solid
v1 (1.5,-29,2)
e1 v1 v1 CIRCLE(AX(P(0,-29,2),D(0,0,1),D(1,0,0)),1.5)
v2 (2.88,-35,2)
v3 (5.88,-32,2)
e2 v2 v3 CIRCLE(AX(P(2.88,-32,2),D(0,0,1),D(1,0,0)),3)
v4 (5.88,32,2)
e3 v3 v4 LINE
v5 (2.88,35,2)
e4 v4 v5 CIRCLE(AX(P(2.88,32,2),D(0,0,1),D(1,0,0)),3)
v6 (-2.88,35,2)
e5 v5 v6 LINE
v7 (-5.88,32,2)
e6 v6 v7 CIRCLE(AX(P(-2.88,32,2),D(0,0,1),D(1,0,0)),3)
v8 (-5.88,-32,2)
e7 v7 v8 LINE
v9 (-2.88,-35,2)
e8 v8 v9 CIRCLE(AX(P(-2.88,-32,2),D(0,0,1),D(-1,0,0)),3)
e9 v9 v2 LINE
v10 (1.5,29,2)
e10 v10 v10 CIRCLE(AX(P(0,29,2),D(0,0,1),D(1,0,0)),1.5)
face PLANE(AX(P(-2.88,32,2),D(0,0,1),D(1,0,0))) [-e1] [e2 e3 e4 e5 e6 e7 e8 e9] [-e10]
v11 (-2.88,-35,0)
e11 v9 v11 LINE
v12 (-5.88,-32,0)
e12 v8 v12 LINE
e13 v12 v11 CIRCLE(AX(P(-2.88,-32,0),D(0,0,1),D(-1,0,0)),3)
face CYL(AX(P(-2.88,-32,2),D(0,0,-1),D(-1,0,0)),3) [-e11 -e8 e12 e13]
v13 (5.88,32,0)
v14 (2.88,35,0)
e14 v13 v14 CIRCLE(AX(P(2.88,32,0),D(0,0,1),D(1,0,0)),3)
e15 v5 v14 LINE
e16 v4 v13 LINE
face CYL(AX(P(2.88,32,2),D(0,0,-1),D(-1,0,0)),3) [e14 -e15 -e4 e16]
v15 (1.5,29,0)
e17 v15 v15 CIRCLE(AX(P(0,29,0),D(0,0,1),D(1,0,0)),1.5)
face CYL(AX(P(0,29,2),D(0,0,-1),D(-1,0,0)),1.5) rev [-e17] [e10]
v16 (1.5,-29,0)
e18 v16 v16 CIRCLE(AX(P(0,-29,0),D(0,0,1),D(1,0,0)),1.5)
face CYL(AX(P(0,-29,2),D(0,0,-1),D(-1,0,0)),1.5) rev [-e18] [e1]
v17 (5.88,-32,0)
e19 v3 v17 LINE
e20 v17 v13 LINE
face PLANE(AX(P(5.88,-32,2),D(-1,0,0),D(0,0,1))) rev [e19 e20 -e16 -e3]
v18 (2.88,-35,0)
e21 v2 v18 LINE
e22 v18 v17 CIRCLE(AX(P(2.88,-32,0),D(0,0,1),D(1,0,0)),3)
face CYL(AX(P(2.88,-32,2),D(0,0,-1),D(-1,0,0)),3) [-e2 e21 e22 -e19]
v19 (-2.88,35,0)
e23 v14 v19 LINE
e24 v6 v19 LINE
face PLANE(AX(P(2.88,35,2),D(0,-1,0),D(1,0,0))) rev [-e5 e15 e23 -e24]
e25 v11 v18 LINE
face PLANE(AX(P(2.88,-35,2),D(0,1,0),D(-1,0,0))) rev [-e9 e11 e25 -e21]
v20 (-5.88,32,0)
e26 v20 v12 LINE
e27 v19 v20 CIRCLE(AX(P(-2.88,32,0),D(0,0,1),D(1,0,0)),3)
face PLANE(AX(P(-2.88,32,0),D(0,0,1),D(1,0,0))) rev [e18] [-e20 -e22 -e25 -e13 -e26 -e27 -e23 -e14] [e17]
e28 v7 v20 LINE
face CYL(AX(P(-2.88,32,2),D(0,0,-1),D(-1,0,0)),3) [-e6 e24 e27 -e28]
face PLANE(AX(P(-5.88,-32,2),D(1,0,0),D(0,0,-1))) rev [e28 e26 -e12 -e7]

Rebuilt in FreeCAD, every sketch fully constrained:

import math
import FreeCAD as App
import Part
import Sketcher

doc = App.newDocument("Part")
body = doc.addObject("PartDesign::Body", "Body")

sketch1 = body.newObject("Sketcher::SketchObject", "Sketch")
sketch1.AttachmentSupport = (doc.getObject("XY_Plane"), [""])
sketch1.MapMode = "FlatFace"
sketch1.addGeometry(Part.LineSegment(App.Vector(-2.9, -35, 0), App.Vector(2.9, -35, 0)), False)
sketch1.addGeometry(Part.ArcOfCircle(Part.Circle(App.Vector(2.9, -32, 0), App.Vector(0, 0, 1), 3), math.radians(-90), math.radians(0)), False)
sketch1.addGeometry(Part.LineSegment(App.Vector(5.9, -32, 0), App.Vector(5.9, 32, 0)), False)
sketch1.addGeometry(Part.ArcOfCircle(Part.Circle(App.Vector(2.9, 32, 0), App.Vector(0, 0, 1), 3), math.radians(0), math.radians(90)), False)
sketch1.addGeometry(Part.LineSegment(App.Vector(2.9, 35, 0), App.Vector(-2.9, 35, 0)), False)
sketch1.addGeometry(Part.ArcOfCircle(Part.Circle(App.Vector(-2.9, 32, 0), App.Vector(0, 0, 1), 3), math.radians(90), math.radians(180)), False)
sketch1.addGeometry(Part.LineSegment(App.Vector(-5.9, 32, 0), App.Vector(-5.9, -32, 0)), False)
sketch1.addGeometry(Part.ArcOfCircle(Part.Circle(App.Vector(-2.9, -32, 0), App.Vector(0, 0, 1), 3), math.radians(180), math.radians(270)), False)
sketch1.addGeometry(Part.Circle(App.Vector(0, -29, 0), App.Vector(0, 0, 1), 1.5), False)
sketch1.addGeometry(Part.Circle(App.Vector(0, 29, 0), App.Vector(0, 0, 1), 1.5), False)
sketch1.addConstraint(Sketcher.Constraint("Tangent", 0, 2, 1, 1))
sketch1.addConstraint(Sketcher.Constraint("Tangent", 1, 2, 2, 1))
sketch1.addConstraint(Sketcher.Constraint("Tangent", 2, 2, 3, 1))
sketch1.addConstraint(Sketcher.Constraint("Tangent", 3, 2, 4, 1))
sketch1.addConstraint(Sketcher.Constraint("Tangent", 4, 2, 5, 1))
sketch1.addConstraint(Sketcher.Constraint("Tangent", 5, 2, 6, 1))
sketch1.addConstraint(Sketcher.Constraint("Tangent", 6, 2, 7, 1))
sketch1.addConstraint(Sketcher.Constraint("Tangent", 7, 2, 0, 1))
sketch1.addConstraint(Sketcher.Constraint("Horizontal", 0))
sketch1.addConstraint(Sketcher.Constraint("Vertical", 2))
sketch1.addConstraint(Sketcher.Constraint("Horizontal", 4))
sketch1.addConstraint(Sketcher.Constraint("Vertical", 6))
sketch1.addConstraint(Sketcher.Constraint("Equal", 1, 3))
sketch1.addConstraint(Sketcher.Constraint("Equal", 3, 5))
sketch1.addConstraint(Sketcher.Constraint("Equal", 5, 7))
sketch1.addConstraint(Sketcher.Constraint("Equal", 8, 9))
sketch1.addConstraint(Sketcher.Constraint("Symmetric", 1, 3, 5, 3, -1, 1))
sketch1.addConstraint(Sketcher.Constraint("Symmetric", 8, 3, 9, 3, -1, 1))
sketch1.addConstraint(Sketcher.Constraint("PointOnObject", 8, 3, -2))
sketch1.addConstraint(Sketcher.Constraint("Diameter", 8, 3.0))
sketch1.addConstraint(Sketcher.Constraint("Radius", 1, 3.0))
sketch1.addConstraint(Sketcher.Constraint("DistanceY", 2, 1, 2, 2, 64.0))
sketch1.addConstraint(Sketcher.Constraint("DistanceY", 8, 3, -1, 1, 29.0))
sketch1.addConstraint(Sketcher.Constraint("DistanceX", 0, 1, 0, 2, 5.76))
pad1 = body.newObject("PartDesign::Pad", "Pad")
pad1.Profile = sketch1
pad1.Length = 2

doc.recompute()
